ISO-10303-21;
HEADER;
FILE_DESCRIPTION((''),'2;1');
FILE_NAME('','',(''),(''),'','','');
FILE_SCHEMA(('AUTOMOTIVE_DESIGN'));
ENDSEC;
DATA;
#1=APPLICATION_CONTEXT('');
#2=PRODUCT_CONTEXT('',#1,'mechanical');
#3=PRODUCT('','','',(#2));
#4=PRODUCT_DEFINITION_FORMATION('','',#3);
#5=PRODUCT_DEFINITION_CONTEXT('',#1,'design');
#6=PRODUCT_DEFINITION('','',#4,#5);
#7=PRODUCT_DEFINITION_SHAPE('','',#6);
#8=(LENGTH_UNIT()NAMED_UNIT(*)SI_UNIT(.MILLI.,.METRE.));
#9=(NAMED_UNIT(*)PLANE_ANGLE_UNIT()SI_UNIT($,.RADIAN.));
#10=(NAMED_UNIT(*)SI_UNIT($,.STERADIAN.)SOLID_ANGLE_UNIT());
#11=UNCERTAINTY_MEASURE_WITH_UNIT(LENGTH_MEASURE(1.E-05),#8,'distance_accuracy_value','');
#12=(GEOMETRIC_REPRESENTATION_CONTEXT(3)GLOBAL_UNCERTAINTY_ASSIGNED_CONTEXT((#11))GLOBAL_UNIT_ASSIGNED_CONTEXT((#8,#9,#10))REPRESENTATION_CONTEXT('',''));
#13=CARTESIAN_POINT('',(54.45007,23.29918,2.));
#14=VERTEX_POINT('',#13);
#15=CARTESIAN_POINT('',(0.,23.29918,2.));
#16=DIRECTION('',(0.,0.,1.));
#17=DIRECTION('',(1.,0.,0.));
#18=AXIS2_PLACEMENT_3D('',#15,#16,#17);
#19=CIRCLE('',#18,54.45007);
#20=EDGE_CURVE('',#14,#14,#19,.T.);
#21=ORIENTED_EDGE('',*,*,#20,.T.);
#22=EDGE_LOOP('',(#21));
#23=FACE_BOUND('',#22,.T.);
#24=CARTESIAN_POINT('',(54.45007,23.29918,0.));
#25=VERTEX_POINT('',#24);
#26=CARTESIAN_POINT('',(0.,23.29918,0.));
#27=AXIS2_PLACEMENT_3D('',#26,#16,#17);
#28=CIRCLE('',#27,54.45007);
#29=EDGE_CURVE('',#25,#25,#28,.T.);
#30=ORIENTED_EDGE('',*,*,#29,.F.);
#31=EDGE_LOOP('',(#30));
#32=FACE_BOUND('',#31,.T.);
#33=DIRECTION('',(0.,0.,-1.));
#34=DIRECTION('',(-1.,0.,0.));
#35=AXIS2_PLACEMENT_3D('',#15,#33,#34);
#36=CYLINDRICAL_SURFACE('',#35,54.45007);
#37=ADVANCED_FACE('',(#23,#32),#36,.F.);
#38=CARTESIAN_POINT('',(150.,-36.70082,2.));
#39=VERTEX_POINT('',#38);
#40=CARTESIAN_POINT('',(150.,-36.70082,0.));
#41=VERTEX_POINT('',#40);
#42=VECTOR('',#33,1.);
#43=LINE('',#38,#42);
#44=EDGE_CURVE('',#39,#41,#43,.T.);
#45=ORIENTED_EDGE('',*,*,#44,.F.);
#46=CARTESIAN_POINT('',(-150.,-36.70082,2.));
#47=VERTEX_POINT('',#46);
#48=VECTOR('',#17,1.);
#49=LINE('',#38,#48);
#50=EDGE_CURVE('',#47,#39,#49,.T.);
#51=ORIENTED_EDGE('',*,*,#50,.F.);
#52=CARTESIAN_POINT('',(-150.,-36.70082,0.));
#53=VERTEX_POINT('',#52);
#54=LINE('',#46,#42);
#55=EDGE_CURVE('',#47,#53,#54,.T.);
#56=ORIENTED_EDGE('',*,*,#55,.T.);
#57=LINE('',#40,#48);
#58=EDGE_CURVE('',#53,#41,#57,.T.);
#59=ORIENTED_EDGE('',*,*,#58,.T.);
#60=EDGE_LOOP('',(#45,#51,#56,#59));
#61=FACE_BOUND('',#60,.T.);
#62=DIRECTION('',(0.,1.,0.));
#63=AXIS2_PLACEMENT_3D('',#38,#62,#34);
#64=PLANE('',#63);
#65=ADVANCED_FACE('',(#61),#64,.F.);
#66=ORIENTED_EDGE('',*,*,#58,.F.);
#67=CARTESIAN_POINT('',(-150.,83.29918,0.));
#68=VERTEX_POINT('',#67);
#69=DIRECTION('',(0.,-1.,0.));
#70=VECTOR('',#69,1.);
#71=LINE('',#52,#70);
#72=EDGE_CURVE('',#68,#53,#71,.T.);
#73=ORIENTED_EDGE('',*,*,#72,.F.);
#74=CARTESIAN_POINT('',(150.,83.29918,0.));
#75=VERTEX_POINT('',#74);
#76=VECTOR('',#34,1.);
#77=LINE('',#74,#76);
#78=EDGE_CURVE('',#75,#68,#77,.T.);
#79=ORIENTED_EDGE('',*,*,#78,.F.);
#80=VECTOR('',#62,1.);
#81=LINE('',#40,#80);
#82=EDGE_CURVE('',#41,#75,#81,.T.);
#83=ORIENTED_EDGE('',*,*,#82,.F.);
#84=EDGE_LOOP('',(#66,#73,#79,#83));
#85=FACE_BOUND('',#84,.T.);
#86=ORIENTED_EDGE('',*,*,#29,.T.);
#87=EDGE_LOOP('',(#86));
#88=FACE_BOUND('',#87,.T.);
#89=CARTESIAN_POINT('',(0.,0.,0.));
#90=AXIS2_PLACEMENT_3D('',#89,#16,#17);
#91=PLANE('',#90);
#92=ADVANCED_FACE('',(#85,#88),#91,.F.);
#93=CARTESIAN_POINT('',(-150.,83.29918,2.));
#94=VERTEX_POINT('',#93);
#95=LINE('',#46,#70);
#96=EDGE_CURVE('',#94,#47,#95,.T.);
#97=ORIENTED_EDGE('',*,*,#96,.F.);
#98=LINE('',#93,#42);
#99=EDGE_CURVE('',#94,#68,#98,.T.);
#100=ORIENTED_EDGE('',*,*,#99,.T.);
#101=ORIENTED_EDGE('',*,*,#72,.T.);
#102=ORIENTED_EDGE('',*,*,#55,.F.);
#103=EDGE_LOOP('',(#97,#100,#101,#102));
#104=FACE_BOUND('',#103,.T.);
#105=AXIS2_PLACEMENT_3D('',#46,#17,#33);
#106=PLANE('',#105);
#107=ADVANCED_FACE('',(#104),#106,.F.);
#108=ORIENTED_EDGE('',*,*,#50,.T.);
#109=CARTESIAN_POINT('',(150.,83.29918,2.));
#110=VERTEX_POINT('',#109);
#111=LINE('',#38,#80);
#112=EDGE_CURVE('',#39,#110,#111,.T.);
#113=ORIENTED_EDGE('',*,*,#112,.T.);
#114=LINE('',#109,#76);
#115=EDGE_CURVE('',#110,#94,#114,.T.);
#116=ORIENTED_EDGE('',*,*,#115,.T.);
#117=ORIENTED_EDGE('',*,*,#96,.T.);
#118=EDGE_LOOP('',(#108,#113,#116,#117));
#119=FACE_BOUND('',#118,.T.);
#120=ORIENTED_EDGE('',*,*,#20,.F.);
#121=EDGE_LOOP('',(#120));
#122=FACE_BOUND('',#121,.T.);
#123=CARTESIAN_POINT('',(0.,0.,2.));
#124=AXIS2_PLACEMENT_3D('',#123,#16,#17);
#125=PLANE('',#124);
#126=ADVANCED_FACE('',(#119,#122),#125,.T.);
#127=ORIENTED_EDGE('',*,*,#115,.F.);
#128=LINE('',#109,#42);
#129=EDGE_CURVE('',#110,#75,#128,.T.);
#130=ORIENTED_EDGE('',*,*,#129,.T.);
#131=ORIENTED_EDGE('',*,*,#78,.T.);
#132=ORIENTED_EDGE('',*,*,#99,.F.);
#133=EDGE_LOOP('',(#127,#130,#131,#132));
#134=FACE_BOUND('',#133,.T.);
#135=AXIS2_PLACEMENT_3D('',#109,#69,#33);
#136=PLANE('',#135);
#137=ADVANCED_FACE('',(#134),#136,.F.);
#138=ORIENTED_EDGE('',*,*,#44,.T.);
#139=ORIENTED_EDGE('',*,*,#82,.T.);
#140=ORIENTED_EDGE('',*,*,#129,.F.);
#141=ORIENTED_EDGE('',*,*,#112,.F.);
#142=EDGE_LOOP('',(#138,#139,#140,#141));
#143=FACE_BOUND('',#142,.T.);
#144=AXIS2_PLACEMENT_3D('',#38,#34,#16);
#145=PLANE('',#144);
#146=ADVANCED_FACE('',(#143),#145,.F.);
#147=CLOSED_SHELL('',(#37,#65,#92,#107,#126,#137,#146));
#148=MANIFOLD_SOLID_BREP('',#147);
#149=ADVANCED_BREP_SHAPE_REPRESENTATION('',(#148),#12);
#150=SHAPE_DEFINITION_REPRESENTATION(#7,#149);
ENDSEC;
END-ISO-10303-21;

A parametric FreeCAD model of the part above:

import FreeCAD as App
import Part
import Sketcher


def add_polygon(sketch, points):
    """Adds a closed chain of lines whose ends are joined by coincident constraints."""
    first, n = sketch.GeometryCount, len(points)
    for a, b in zip(points, points[1:] + points[:1]):
        sketch.addGeometry(Part.LineSegment(App.Vector(*a, 0), App.Vector(*b, 0)), False)
    for i in range(n):
        sketch.addConstraint(Sketcher.Constraint("Coincident", first + i, 2, first + (i + 1) % n, 1))

doc = App.newDocument("Part")
body = doc.addObject("PartDesign::Body", "Body")

# Sketch on XY plane
sketch1 = doc.addObject("Sketcher::SketchObject", "Sketch")
body.addObject(sketch1)
sketch1.AttachmentSupport = (doc.XY_Plane, [""])
sketch1.MapMode = "FlatFace"
add_polygon(sketch1, [(-150, 83), (-150, -37), (150, -37), (150, 83)])  # lines 0-3
sketch1.addGeometry(Part.Circle(App.Vector(0, 23, 0), App.Vector(0, 0, 1), 54), False)  # 4
sketch1.addConstraint([
    Sketcher.Constraint("Vertical", 0),
    Sketcher.Constraint("Horizontal", 1),
    Sketcher.Constraint("Vertical", 2),
    Sketcher.Constraint("Horizontal", 3),
    Sketcher.Constraint("PointOnObject", 4, 3, -2),
    Sketcher.Constraint("DistanceX", 1, 1, 1, 2, 300.0),
    Sketcher.Constraint("DistanceY", 0, 2, 0, 1, 120.0),
    Sketcher.Constraint("DistanceX", 0, 2, -1, 1, 150.0),
    Sketcher.Constraint("DistanceY", 0, 2, 4, 3, 60.0),
    Sketcher.Constraint("Diameter", 4, 108.90014),
    Sketcher.Constraint("DistanceY", -1, 1, 4, 3, 23.29918),
])
pad1 = doc.addObject("PartDesign::Pad", "Pad")
body.addObject(pad1)
pad1.Profile = sketch1
pad1.Length = 2

doc.recompute()
